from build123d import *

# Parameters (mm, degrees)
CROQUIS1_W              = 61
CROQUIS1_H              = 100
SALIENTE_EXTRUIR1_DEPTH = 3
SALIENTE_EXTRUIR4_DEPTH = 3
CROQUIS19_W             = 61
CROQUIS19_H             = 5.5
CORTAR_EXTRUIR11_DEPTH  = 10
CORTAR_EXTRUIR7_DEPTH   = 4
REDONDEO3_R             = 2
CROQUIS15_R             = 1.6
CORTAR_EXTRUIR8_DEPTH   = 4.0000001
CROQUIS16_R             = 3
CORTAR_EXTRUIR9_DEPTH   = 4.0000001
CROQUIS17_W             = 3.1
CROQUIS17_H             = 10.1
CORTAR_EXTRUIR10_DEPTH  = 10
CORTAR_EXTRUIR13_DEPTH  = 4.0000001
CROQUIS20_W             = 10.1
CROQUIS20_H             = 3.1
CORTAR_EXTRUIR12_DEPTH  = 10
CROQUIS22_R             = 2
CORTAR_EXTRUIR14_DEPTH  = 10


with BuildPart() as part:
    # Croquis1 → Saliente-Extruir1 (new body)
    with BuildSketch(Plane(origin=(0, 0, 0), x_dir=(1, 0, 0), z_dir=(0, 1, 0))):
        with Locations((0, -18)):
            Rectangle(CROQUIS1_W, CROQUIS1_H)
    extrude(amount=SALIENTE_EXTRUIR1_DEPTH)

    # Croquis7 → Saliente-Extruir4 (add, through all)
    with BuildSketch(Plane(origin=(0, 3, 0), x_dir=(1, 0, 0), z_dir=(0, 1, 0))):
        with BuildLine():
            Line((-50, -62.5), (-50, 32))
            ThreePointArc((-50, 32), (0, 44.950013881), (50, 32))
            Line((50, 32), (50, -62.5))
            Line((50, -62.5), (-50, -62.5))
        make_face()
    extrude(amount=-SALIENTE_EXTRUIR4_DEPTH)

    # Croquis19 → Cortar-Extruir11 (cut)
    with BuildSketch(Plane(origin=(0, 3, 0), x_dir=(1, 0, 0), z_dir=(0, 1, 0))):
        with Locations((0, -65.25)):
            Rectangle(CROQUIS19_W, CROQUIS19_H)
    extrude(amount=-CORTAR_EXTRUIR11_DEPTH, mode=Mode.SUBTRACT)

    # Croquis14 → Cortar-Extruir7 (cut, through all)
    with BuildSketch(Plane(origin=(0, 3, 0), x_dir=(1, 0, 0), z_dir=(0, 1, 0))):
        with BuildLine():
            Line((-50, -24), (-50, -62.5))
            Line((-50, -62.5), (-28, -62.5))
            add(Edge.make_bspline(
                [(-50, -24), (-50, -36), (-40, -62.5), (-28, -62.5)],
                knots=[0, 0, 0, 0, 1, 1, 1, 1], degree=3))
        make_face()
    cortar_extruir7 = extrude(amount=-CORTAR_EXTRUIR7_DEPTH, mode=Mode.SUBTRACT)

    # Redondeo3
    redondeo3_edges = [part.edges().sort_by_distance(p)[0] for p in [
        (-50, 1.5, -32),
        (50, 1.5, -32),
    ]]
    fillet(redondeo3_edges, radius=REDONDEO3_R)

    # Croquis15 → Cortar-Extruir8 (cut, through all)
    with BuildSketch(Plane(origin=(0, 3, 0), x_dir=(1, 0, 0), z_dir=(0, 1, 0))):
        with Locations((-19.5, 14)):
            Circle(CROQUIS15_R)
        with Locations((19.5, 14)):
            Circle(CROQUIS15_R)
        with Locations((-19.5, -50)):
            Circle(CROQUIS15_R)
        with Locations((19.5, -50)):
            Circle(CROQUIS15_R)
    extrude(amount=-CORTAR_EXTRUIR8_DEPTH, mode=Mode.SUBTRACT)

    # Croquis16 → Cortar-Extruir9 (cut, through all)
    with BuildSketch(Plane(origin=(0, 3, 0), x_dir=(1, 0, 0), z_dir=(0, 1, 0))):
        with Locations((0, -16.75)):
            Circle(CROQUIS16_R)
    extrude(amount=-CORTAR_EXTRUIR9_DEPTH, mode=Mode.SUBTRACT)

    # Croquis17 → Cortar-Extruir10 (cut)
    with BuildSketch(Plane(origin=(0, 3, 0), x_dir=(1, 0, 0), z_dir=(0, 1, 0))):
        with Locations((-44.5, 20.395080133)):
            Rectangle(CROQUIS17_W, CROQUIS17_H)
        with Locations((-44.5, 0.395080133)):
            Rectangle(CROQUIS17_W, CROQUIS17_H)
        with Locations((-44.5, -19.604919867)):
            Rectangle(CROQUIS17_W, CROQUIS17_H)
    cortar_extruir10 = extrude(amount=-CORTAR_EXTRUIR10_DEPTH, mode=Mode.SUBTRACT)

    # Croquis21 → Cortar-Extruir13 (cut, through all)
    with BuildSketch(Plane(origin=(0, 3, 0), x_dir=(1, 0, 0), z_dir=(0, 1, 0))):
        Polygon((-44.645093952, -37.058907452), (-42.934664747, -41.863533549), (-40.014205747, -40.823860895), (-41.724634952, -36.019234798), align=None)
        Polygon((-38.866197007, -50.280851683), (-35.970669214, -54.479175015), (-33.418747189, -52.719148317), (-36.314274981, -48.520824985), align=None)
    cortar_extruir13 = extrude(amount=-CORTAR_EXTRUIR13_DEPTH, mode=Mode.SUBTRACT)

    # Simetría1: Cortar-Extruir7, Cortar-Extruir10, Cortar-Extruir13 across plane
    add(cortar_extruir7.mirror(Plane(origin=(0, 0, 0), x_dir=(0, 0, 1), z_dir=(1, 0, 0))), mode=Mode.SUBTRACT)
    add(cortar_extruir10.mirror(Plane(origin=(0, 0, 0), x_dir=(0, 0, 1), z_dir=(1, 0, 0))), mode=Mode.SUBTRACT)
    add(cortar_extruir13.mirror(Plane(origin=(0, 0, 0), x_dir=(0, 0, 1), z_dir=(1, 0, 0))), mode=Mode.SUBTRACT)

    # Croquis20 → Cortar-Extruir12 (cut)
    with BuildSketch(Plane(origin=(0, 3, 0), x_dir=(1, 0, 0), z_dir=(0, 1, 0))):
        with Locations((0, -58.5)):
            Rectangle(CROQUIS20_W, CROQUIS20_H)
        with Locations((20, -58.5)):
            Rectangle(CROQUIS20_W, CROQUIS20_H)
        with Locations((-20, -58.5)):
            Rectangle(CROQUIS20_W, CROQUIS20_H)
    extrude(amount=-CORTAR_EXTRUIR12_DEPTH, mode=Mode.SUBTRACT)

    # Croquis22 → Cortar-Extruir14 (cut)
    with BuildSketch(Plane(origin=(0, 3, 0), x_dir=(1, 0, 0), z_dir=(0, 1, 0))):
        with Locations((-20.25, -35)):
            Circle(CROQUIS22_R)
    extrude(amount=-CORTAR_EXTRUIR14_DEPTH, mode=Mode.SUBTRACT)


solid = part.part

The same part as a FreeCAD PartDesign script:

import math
import FreeCAD as App
import Part
import Sketcher

V = App.Vector
Q = App.Units.Quantity


def edges_at(feature, points):
    """Names of the edges that pass closest to the given points."""
    edges = feature.Shape.Edges
    near = lambda p: min(range(len(edges)), key=lambda i: edges[i].distToShape(Part.Vertex(*p))[0])
    return sorted({f"Edge{near(p) + 1}" for p in points})


def add_polygon(sketch, points):
    """Adds a closed chain of lines whose ends are joined by coincident constraints."""
    first, n = sketch.GeometryCount, len(points)
    for a, b in zip(points, points[1:] + points[:1]):
        sketch.addGeometry(Part.LineSegment(App.Vector(*a, 0), App.Vector(*b, 0)), False)
    for i in range(n):
        sketch.addConstraint(Sketcher.Constraint("Coincident", first + i, 2, first + (i + 1) % n, 1))

doc = App.newDocument("Part")
body = doc.addObject("PartDesign::Body", "Body")

# Sketch on XZ plane
sketch1 = doc.addObject("Sketcher::SketchObject", "Sketch")
body.addObject(sketch1)
sketch1.AttachmentSupport = (doc.XZ_Plane, [""])
sketch1.MapMode = "FlatFace"
add_polygon(sketch1, [(-30, -32), (-30, 68), (30, 68), (30, -32)])  # lines 0-3
sketch1.addConstraint(Sketcher.Constraint("Vertical", 0))
sketch1.addConstraint(Sketcher.Constraint("Horizontal", 1))
sketch1.addConstraint(Sketcher.Constraint("Vertical", 2))
sketch1.addConstraint(Sketcher.Constraint("Horizontal", 3))
sketch1.addConstraint(Sketcher.Constraint("DistanceX", 1, 1, 1, 2, Q("61 mm")))
sketch1.addConstraint(Sketcher.Constraint("DistanceY", 0, 1, 0, 2, Q("100 mm")))
sketch1.addConstraint(Sketcher.Constraint("DistanceY", -1, 1, 0, 2, Q("68 mm")))
sketch1.addConstraint(Sketcher.Constraint("DistanceX", 0, 2, -1, 1, Q("30.5 mm")))
pad1 = doc.addObject("PartDesign::Pad", "Pad")
body.addObject(pad1)
pad1.Profile = sketch1
pad1.Length = 3
pad1.Reversed = True

# Sketch on XZ plane
sketch2 = doc.addObject("Sketcher::SketchObject", "Sketch001")
body.addObject(sketch2)
sketch2.AttachmentSupport = (doc.XZ_Plane, [""])
sketch2.MapMode = "FlatFace"
sketch2.AttachmentOffset = App.Placement(V(0, 0, -3), App.Rotation())
sketch2.addGeometry(Part.LineSegment(V(-50, -32, 0), V(-50, 62, 0)), False)
sketch2.addGeometry(Part.LineSegment(V(-50, 62, 0), V(50, 62, 0)), False)
sketch2.addGeometry(Part.LineSegment(V(50, 62, 0), V(50, -32, 0)), False)
sketch2.addGeometry(Part.ArcOfCircle(Part.Circle(V(0, 58, 0), V(0, 0, 1), 103), math.radians(-119), math.radians(-61)), False)
sketch2.addConstraint(Sketcher.Constraint("Coincident", 0, 2, 1, 1))
sketch2.addConstraint(Sketcher.Constraint("Coincident", 1, 2, 2, 1))
sketch2.addConstraint(Sketcher.Constraint("Coincident", 2, 2, 3, 2))
sketch2.addConstraint(Sketcher.Constraint("Coincident", 3, 1, 0, 1))
sketch2.addConstraint(Sketcher.Constraint("Vertical", 0))
sketch2.addConstraint(Sketcher.Constraint("Horizontal", 1))
sketch2.addConstraint(Sketcher.Constraint("Vertical", 2))
sketch2.addConstraint(Sketcher.Constraint("Symmetric", 2, 2, 3, 1, -2))
sketch2.addConstraint(Sketcher.Constraint("Radius", 3, Q("103 mm")))
sketch2.addConstraint(Sketcher.Constraint("DistanceX", 1, 1, 1, 2, Q("100 mm")))
sketch2.addConstraint(Sketcher.Constraint("DistanceY", 0, 1, 0, 2, Q("94.5 mm")))
sketch2.addConstraint(Sketcher.Constraint("DistanceY", 2, 2, -1, 1, Q("32 mm")))
pad2 = doc.addObject("PartDesign::Pad", "Pad001")
body.addObject(pad2)
pad2.Profile = sketch2
pad2.Type = "UpToLast"

# Sketch on XZ plane
sketch3 = doc.addObject("Sketcher::SketchObject", "Sketch002")
body.addObject(sketch3)
sketch3.AttachmentSupport = (doc.XZ_Plane, [""])
sketch3.MapMode = "FlatFace"
sketch3.AttachmentOffset = App.Placement(V(0, 0, -3), App.Rotation())
add_polygon(sketch3, [(-30, 62), (-30, 68), (30, 68), (30, 62)])  # lines 0-3
sketch3.addConstraint(Sketcher.Constraint("Vertical", 0))
sketch3.addConstraint(Sketcher.Constraint("Horizontal", 1))
sketch3.addConstraint(Sketcher.Constraint("Vertical", 2))
sketch3.addConstraint(Sketcher.Constraint("Horizontal", 3))
sketch3.addConstraint(Sketcher.Constraint("DistanceX", 1, 1, 1, 2, Q("61 mm")))
sketch3.addConstraint(Sketcher.Constraint("DistanceY", 0, 1, 0, 2, Q("5.5 mm")))
sketch3.addConstraint(Sketcher.Constraint("DistanceY", -1, 1, 0, 2, Q("68 mm")))
sketch3.addConstraint(Sketcher.Constraint("DistanceX", 0, 2, -1, 1, Q("30.5 mm")))
pocket1 = doc.addObject("PartDesign::Pocket", "Pocket")
body.addObject(pocket1)
pocket1.Profile = sketch3
pocket1.Length = 10
pocket1.Reversed = True

# Sketch on XZ plane
sketch4 = doc.addObject("Sketcher::SketchObject", "Sketch003")
body.addObject(sketch4)
sketch4.AttachmentSupport = (doc.XZ_Plane, [""])
sketch4.MapMode = "FlatFace"
sketch4.AttachmentOffset = App.Placement(V(0, 0, -3), App.Rotation())
sketch4.addGeometry(Part.LineSegment(V(-50, 24, 0), V(-50, 62.5, 0)), False)
sketch4.addGeometry(Part.LineSegment(V(-50, 62.5, 0), V(-28, 62.5, 0)), False)
sketch4.addGeometry(Part.BSplineCurve([V(-50, 24, 0), V(-50, 36, 0), V(-40, 62.5, 0), V(-28, 62.5, 0)], [4, 4], [0, 1], False, 3, [1, 1, 1, 1], False), False)
sketch4.addConstraint(Sketcher.Constraint("Block", 2))
sketch4.addConstraint(Sketcher.Constraint("Coincident", 0, 2, 1, 1))
sketch4.addConstraint(Sketcher.Constraint("Coincident", 1, 2, 2, 2))
sketch4.addConstraint(Sketcher.Constraint("Coincident", 2, 1, 0, 1))
sketch4.addConstraint(Sketcher.Constraint("Vertical", 0))
sketch4.addConstraint(Sketcher.Constraint("Horizontal", 1))
pocket2 = doc.addObject("PartDesign::Pocket", "Pocket001")
body.addObject(pocket2)
pocket2.Profile = sketch4
pocket2.Type = "ThroughAll"
pocket2.Reversed = True
doc.recompute()

fillet = doc.addObject("PartDesign::Fillet", "Fillet")
body.addObject(fillet)
fillet.Base = (pocket2, edges_at(pocket2, [(-50, 1.5, -32), (50, 1.5, -32)]))
fillet.Radius = 2

# Sketch on XZ plane
sketch5 = doc.addObject("Sketcher::SketchObject", "Sketch004")
body.addObject(sketch5)
sketch5.AttachmentSupport = (doc.XZ_Plane, [""])
sketch5.MapMode = "FlatFace"
sketch5.AttachmentOffset = App.Placement(V(0, 0, -3), App.Rotation())
sketch5.addGeometry(Part.Circle(V(-19.5, -14, 0), V(0, 0, 1), 1.6), False)
sketch5.addGeometry(Part.Circle(V(19.5, -14, 0), V(0, 0, 1), 1.6), False)
sketch5.addGeometry(Part.Circle(V(-19.5, 50, 0), V(0, 0, 1), 1.6), False)
sketch5.addGeometry(Part.Circle(V(19.5, 50, 0), V(0, 0, 1), 1.6), False)
sketch5.addConstraint(Sketcher.Constraint("Equal", 0, 1))
sketch5.addConstraint(Sketcher.Constraint("Equal", 1, 2))
sketch5.addConstraint(Sketcher.Constraint("Equal", 2, 3))
sketch5.addConstraint(Sketcher.Constraint("Symmetric", 0, 3, 1, 3, -2))
sketch5.addConstraint(Sketcher.Constraint("Symmetric", 2, 3, 3, 3, -2))
sketch5.addConstraint(Sketcher.Constraint("Vertical", 0, 3, 2, 3))
sketch5.addConstraint(Sketcher.Constraint("Diameter", 0, Q("3.2 mm")))
sketch5.addConstraint(Sketcher.Constraint("DistanceY", 0, 3, -1, 1, Q("14 mm")))
sketch5.addConstraint(Sketcher.Constraint("DistanceY", -1, 1, 2, 3, Q("50 mm")))
sketch5.addConstraint(Sketcher.Constraint("DistanceX", 0, 3, 1, 3, Q("39 mm")))
pocket3 = doc.addObject("PartDesign::Pocket", "Pocket002")
body.addObject(pocket3)
pocket3.Profile = sketch5
pocket3.Type = "ThroughAll"
pocket3.Reversed = True

# Sketch on XZ plane
sketch6 = doc.addObject("Sketcher::SketchObject", "Sketch005")
body.addObject(sketch6)
sketch6.AttachmentSupport = (doc.XZ_Plane, [""])
sketch6.MapMode = "FlatFace"
sketch6.AttachmentOffset = App.Placement(V(0, 0, -3), App.Rotation())
sketch6.addGeometry(Part.Circle(V(0, 16.8, 0), V(0, 0, 1), 3), False)
sketch6.addConstraint(Sketcher.Constraint("PointOnObject", 0, 3, -2))
sketch6.addConstraint(Sketcher.Constraint("Diameter", 0, Q("6 mm")))
sketch6.addConstraint(Sketcher.Constraint("DistanceY", -1, 1, 0, 3, Q("16.75 mm")))
pocket4 = doc.addObject("PartDesign::Pocket", "Pocket003")
body.addObject(pocket4)
pocket4.Profile = sketch6
pocket4.Type = "ThroughAll"
pocket4.Reversed = True

# Sketch on XZ plane
sketch7 = doc.addObject("Sketcher::SketchObject", "Sketch006")
body.addObject(sketch7)
sketch7.AttachmentSupport = (doc.XZ_Plane, [""])
sketch7.MapMode = "FlatFace"
sketch7.AttachmentOffset = App.Placement(V(0, 0, -3), App.Rotation())
add_polygon(sketch7, [(-46, -25.4), (-46, -15.3), (-43, -15.3), (-43, -25.4)])  # lines 0-3
add_polygon(sketch7, [(-46, -5.4), (-46, 4.7), (-43, 4.7), (-43, -5.4)])  # lines 4-7
add_polygon(sketch7, [(-46, 14.6), (-46, 24.7), (-43, 24.7), (-43, 14.6)])  # lines 8-11
sketch7.addConstraint(Sketcher.Constraint("Vertical", 0))
sketch7.addConstraint(Sketcher.Constraint("Horizontal", 1))
sketch7.addConstraint(Sketcher.Constraint("Vertical", 2))
sketch7.addConstraint(Sketcher.Constraint("Horizontal", 3))
sketch7.addConstraint(Sketcher.Constraint("Vertical", 4))
sketch7.addConstraint(Sketcher.Constraint("Horizontal", 5))
sketch7.addConstraint(Sketcher.Constraint("Vertical", 6))
sketch7.addConstraint(Sketcher.Constraint("Horizontal", 7))
sketch7.addConstraint(Sketcher.Constraint("Vertical", 8))
sketch7.addConstraint(Sketcher.Constraint("Horizontal", 9))
sketch7.addConstraint(Sketcher.Constraint("Vertical", 10))
sketch7.addConstraint(Sketcher.Constraint("Horizontal", 11))
sketch7.addConstraint(Sketcher.Constraint("Vertical", 3, 2, 4, 2))
sketch7.addConstraint(Sketcher.Constraint("Vertical", 2, 2, 5, 2))
sketch7.addConstraint(Sketcher.Constraint("Vertical", 7, 2, 8, 2))
sketch7.addConstraint(Sketcher.Constraint("Vertical", 6, 2, 9, 2))
sketch7.addConstraint(Sketcher.Constraint("Equal", 2, 4))
sketch7.addConstraint(Sketcher.Constraint("Equal", 6, 8))
sketch7.addConstraint(Sketcher.Constraint("DistanceX", 1, 1, 1, 2, Q("3.1 mm")))
sketch7.addConstraint(Sketcher.Constraint("DistanceY", 0, 1, 0, 2, Q("10.1 mm")))
sketch7.addConstraint(Sketcher.Constraint("DistanceY", 0, 2, 4, 2, Q("20 mm")))
sketch7.addConstraint(Sketcher.Constraint("DistanceY", 4, 2, 8, 2, Q("20 mm")))
sketch7.addConstraint(Sketcher.Constraint("DistanceX", 0, 2, -1, 1, Q("46.05 mm")))
sketch7.addConstraint(Sketcher.Constraint("DistanceY", 0, 2, -1, 1, Q("15.34508 mm")))
pocket5 = doc.addObject("PartDesign::Pocket", "Pocket004")
body.addObject(pocket5)
pocket5.Profile = sketch7
pocket5.Length = 10
pocket5.Reversed = True

# Sketch on XZ plane
sketch8 = doc.addObject("Sketcher::SketchObject", "Sketch007")
body.addObject(sketch8)
sketch8.AttachmentSupport = (doc.XZ_Plane, [""])
sketch8.MapMode = "FlatFace"
sketch8.AttachmentOffset = App.Placement(V(0, 0, -3), App.Rotation())
add_polygon(sketch8, [(-44.6, 37.1), (-42.9, 41.9), (-40, 40.8), (-41.7, 36)])  # lines 0-3
add_polygon(sketch8, [(-38.9, 50.3), (-36, 54.5), (-33.4, 52.7), (-36.3, 48.5)])  # lines 4-7
sketch8.addConstraint(Sketcher.Constraint("Perpendicular", 0, 1))
sketch8.addConstraint(Sketcher.Constraint("Perpendicular", 1, 2))
sketch8.addConstraint(Sketcher.Constraint("Perpendicular", 2, 3))
sketch8.addConstraint(Sketcher.Constraint("Perpendicular", 4, 5))
sketch8.addConstraint(Sketcher.Constraint("Perpendicular", 5, 6))
sketch8.addConstraint(Sketcher.Constraint("Perpendicular", 6, 7))
sketch8.addConstraint(Sketcher.Constraint("Equal", 2, 4))
sketch8.addConstraint(Sketcher.Constraint("Equal", 3, 5))
sketch8.addConstraint(Sketcher.Constraint("Distance", 0, Q("5.1 mm")))
sketch8.addConstraint(Sketcher.Constraint("Distance", 1, Q("3.1 mm")))
sketch8.addConstraint(Sketcher.Constraint("DistanceY", 2, 2, 0, 2, Q("5.844299 mm")))
sketch8.addConstraint(Sketcher.Constraint("DistanceY", -1, 1, 1, 2, Q("40.823861 mm")))
sketch8.addConstraint(Sketcher.Constraint("DistanceX", 4, 2, -1, 1, Q("35.970669 mm")))
sketch8.addConstraint(Sketcher.Constraint("DistanceY", -1, 1, 5, 2, Q("52.719148 mm")))
sketch8.addConstraint(Sketcher.Constraint("DistanceY", -1, 1, 7, 2, Q("50.280852 mm")))
sketch8.addConstraint(Sketcher.Constraint("DistanceX", 1, 2, 5, 2, Q("6.595459 mm")))
pocket6 = doc.addObject("PartDesign::Pocket", "Pocket005")
body.addObject(pocket6)
pocket6.Profile = sketch8
pocket6.Type = "ThroughAll"
pocket6.Reversed = True
doc.recompute()

mirrored = doc.addObject("PartDesign::Mirrored", "Mirrored")
body.addObject(mirrored)
mirrored.Originals = [pocket2, pocket5, pocket6]
mirrored.MirrorPlane = (doc.YZ_Plane, [""])
body.Tip = mirrored

# Sketch on XZ plane
sketch9 = doc.addObject("Sketcher::SketchObject", "Sketch008")
body.addObject(sketch9)
sketch9.AttachmentSupport = (doc.XZ_Plane, [""])
sketch9.MapMode = "FlatFace"
sketch9.AttachmentOffset = App.Placement(V(0, 0, -3), App.Rotation())
add_polygon(sketch9, [(-5, 57), (-5, 60), (5, 60), (5, 57)])  # lines 0-3
add_polygon(sketch9, [(14.9, 57), (14.9, 60), (25.1, 60), (25.1, 57)])  # lines 4-7
add_polygon(sketch9, [(-25.1, 57), (-25.1, 60), (-14.9, 60), (-14.9, 57)])  # lines 8-11
sketch9.addConstraint(Sketcher.Constraint("Vertical", 0))
sketch9.addConstraint(Sketcher.Constraint("Horizontal", 1))
sketch9.addConstraint(Sketcher.Constraint("Vertical", 2))
sketch9.addConstraint(Sketcher.Constraint("Horizontal", 3))
sketch9.addConstraint(Sketcher.Constraint("Vertical", 4))
sketch9.addConstraint(Sketcher.Constraint("Horizontal", 5))
sketch9.addConstraint(Sketcher.Constraint("Vertical", 6))
sketch9.addConstraint(Sketcher.Constraint("Horizontal", 7))
sketch9.addConstraint(Sketcher.Constraint("Vertical", 8))
sketch9.addConstraint(Sketcher.Constraint("Horizontal", 9))
sketch9.addConstraint(Sketcher.Constraint("Vertical", 10))
sketch9.addConstraint(Sketcher.Constraint("Horizontal", 11))
sketch9.addConstraint(Sketcher.Constraint("Symmetric", 5, 2, 8, 2, -2))
sketch9.addConstraint(Sketcher.Constraint("Symmetric", 7, 2, 10, 2, -2))
sketch9.addConstraint(Sketcher.Constraint("Horizontal", 1, 2, 4, 2))
sketch9.addConstraint(Sketcher.Constraint("Horizontal", 3, 2, 6, 2))
sketch9.addConstraint(Sketcher.Constraint("Equal", 3, 5))
sketch9.addConstraint(Sketcher.Constraint("DistanceX", 1, 1, 1, 2, Q("10.1 mm")))
sketch9.addConstraint(Sketcher.Constraint("DistanceY", 0, 1, 0, 2, Q("3.1 mm")))
sketch9.addConstraint(Sketcher.Constraint("DistanceX", 0, 2, 4, 2, Q("20 mm")))
sketch9.addConstraint(Sketcher.Constraint("DistanceX", 8, 2, 0, 2, Q("20 mm")))
sketch9.addConstraint(Sketcher.Constraint("DistanceY", -1, 1, 0, 2, Q("60.05 mm")))
pocket7 = doc.addObject("PartDesign::Pocket", "Pocket006")
body.addObject(pocket7)
pocket7.Profile = sketch9
pocket7.Length = 10
pocket7.Reversed = True

# Sketch on XZ plane
sketch10 = doc.addObject("Sketcher::SketchObject", "Sketch009")
body.addObject(sketch10)
sketch10.AttachmentSupport = (doc.XZ_Plane, [""])
sketch10.MapMode = "FlatFace"
sketch10.AttachmentOffset = App.Placement(V(0, 0, -3), App.Rotation())
sketch10.addGeometry(Part.Circle(V(-20.2, 35, 0), V(0, 0, 1), 2), False)
sketch10.addConstraint(Sketcher.Constraint("Diameter", 0, Q("4 mm")))
sketch10.addConstraint(Sketcher.Constraint("DistanceY", -1, 1, 0, 3, Q("35 mm")))
sketch10.addConstraint(Sketcher.Constraint("DistanceX", 0, 3, -1, 1, Q("20.25 mm")))
pocket8 = doc.addObject("PartDesign::Pocket", "Pocket007")
body.addObject(pocket8)
pocket8.Profile = sketch10
pocket8.Length = 10
pocket8.Reversed = True

doc.recompute()
